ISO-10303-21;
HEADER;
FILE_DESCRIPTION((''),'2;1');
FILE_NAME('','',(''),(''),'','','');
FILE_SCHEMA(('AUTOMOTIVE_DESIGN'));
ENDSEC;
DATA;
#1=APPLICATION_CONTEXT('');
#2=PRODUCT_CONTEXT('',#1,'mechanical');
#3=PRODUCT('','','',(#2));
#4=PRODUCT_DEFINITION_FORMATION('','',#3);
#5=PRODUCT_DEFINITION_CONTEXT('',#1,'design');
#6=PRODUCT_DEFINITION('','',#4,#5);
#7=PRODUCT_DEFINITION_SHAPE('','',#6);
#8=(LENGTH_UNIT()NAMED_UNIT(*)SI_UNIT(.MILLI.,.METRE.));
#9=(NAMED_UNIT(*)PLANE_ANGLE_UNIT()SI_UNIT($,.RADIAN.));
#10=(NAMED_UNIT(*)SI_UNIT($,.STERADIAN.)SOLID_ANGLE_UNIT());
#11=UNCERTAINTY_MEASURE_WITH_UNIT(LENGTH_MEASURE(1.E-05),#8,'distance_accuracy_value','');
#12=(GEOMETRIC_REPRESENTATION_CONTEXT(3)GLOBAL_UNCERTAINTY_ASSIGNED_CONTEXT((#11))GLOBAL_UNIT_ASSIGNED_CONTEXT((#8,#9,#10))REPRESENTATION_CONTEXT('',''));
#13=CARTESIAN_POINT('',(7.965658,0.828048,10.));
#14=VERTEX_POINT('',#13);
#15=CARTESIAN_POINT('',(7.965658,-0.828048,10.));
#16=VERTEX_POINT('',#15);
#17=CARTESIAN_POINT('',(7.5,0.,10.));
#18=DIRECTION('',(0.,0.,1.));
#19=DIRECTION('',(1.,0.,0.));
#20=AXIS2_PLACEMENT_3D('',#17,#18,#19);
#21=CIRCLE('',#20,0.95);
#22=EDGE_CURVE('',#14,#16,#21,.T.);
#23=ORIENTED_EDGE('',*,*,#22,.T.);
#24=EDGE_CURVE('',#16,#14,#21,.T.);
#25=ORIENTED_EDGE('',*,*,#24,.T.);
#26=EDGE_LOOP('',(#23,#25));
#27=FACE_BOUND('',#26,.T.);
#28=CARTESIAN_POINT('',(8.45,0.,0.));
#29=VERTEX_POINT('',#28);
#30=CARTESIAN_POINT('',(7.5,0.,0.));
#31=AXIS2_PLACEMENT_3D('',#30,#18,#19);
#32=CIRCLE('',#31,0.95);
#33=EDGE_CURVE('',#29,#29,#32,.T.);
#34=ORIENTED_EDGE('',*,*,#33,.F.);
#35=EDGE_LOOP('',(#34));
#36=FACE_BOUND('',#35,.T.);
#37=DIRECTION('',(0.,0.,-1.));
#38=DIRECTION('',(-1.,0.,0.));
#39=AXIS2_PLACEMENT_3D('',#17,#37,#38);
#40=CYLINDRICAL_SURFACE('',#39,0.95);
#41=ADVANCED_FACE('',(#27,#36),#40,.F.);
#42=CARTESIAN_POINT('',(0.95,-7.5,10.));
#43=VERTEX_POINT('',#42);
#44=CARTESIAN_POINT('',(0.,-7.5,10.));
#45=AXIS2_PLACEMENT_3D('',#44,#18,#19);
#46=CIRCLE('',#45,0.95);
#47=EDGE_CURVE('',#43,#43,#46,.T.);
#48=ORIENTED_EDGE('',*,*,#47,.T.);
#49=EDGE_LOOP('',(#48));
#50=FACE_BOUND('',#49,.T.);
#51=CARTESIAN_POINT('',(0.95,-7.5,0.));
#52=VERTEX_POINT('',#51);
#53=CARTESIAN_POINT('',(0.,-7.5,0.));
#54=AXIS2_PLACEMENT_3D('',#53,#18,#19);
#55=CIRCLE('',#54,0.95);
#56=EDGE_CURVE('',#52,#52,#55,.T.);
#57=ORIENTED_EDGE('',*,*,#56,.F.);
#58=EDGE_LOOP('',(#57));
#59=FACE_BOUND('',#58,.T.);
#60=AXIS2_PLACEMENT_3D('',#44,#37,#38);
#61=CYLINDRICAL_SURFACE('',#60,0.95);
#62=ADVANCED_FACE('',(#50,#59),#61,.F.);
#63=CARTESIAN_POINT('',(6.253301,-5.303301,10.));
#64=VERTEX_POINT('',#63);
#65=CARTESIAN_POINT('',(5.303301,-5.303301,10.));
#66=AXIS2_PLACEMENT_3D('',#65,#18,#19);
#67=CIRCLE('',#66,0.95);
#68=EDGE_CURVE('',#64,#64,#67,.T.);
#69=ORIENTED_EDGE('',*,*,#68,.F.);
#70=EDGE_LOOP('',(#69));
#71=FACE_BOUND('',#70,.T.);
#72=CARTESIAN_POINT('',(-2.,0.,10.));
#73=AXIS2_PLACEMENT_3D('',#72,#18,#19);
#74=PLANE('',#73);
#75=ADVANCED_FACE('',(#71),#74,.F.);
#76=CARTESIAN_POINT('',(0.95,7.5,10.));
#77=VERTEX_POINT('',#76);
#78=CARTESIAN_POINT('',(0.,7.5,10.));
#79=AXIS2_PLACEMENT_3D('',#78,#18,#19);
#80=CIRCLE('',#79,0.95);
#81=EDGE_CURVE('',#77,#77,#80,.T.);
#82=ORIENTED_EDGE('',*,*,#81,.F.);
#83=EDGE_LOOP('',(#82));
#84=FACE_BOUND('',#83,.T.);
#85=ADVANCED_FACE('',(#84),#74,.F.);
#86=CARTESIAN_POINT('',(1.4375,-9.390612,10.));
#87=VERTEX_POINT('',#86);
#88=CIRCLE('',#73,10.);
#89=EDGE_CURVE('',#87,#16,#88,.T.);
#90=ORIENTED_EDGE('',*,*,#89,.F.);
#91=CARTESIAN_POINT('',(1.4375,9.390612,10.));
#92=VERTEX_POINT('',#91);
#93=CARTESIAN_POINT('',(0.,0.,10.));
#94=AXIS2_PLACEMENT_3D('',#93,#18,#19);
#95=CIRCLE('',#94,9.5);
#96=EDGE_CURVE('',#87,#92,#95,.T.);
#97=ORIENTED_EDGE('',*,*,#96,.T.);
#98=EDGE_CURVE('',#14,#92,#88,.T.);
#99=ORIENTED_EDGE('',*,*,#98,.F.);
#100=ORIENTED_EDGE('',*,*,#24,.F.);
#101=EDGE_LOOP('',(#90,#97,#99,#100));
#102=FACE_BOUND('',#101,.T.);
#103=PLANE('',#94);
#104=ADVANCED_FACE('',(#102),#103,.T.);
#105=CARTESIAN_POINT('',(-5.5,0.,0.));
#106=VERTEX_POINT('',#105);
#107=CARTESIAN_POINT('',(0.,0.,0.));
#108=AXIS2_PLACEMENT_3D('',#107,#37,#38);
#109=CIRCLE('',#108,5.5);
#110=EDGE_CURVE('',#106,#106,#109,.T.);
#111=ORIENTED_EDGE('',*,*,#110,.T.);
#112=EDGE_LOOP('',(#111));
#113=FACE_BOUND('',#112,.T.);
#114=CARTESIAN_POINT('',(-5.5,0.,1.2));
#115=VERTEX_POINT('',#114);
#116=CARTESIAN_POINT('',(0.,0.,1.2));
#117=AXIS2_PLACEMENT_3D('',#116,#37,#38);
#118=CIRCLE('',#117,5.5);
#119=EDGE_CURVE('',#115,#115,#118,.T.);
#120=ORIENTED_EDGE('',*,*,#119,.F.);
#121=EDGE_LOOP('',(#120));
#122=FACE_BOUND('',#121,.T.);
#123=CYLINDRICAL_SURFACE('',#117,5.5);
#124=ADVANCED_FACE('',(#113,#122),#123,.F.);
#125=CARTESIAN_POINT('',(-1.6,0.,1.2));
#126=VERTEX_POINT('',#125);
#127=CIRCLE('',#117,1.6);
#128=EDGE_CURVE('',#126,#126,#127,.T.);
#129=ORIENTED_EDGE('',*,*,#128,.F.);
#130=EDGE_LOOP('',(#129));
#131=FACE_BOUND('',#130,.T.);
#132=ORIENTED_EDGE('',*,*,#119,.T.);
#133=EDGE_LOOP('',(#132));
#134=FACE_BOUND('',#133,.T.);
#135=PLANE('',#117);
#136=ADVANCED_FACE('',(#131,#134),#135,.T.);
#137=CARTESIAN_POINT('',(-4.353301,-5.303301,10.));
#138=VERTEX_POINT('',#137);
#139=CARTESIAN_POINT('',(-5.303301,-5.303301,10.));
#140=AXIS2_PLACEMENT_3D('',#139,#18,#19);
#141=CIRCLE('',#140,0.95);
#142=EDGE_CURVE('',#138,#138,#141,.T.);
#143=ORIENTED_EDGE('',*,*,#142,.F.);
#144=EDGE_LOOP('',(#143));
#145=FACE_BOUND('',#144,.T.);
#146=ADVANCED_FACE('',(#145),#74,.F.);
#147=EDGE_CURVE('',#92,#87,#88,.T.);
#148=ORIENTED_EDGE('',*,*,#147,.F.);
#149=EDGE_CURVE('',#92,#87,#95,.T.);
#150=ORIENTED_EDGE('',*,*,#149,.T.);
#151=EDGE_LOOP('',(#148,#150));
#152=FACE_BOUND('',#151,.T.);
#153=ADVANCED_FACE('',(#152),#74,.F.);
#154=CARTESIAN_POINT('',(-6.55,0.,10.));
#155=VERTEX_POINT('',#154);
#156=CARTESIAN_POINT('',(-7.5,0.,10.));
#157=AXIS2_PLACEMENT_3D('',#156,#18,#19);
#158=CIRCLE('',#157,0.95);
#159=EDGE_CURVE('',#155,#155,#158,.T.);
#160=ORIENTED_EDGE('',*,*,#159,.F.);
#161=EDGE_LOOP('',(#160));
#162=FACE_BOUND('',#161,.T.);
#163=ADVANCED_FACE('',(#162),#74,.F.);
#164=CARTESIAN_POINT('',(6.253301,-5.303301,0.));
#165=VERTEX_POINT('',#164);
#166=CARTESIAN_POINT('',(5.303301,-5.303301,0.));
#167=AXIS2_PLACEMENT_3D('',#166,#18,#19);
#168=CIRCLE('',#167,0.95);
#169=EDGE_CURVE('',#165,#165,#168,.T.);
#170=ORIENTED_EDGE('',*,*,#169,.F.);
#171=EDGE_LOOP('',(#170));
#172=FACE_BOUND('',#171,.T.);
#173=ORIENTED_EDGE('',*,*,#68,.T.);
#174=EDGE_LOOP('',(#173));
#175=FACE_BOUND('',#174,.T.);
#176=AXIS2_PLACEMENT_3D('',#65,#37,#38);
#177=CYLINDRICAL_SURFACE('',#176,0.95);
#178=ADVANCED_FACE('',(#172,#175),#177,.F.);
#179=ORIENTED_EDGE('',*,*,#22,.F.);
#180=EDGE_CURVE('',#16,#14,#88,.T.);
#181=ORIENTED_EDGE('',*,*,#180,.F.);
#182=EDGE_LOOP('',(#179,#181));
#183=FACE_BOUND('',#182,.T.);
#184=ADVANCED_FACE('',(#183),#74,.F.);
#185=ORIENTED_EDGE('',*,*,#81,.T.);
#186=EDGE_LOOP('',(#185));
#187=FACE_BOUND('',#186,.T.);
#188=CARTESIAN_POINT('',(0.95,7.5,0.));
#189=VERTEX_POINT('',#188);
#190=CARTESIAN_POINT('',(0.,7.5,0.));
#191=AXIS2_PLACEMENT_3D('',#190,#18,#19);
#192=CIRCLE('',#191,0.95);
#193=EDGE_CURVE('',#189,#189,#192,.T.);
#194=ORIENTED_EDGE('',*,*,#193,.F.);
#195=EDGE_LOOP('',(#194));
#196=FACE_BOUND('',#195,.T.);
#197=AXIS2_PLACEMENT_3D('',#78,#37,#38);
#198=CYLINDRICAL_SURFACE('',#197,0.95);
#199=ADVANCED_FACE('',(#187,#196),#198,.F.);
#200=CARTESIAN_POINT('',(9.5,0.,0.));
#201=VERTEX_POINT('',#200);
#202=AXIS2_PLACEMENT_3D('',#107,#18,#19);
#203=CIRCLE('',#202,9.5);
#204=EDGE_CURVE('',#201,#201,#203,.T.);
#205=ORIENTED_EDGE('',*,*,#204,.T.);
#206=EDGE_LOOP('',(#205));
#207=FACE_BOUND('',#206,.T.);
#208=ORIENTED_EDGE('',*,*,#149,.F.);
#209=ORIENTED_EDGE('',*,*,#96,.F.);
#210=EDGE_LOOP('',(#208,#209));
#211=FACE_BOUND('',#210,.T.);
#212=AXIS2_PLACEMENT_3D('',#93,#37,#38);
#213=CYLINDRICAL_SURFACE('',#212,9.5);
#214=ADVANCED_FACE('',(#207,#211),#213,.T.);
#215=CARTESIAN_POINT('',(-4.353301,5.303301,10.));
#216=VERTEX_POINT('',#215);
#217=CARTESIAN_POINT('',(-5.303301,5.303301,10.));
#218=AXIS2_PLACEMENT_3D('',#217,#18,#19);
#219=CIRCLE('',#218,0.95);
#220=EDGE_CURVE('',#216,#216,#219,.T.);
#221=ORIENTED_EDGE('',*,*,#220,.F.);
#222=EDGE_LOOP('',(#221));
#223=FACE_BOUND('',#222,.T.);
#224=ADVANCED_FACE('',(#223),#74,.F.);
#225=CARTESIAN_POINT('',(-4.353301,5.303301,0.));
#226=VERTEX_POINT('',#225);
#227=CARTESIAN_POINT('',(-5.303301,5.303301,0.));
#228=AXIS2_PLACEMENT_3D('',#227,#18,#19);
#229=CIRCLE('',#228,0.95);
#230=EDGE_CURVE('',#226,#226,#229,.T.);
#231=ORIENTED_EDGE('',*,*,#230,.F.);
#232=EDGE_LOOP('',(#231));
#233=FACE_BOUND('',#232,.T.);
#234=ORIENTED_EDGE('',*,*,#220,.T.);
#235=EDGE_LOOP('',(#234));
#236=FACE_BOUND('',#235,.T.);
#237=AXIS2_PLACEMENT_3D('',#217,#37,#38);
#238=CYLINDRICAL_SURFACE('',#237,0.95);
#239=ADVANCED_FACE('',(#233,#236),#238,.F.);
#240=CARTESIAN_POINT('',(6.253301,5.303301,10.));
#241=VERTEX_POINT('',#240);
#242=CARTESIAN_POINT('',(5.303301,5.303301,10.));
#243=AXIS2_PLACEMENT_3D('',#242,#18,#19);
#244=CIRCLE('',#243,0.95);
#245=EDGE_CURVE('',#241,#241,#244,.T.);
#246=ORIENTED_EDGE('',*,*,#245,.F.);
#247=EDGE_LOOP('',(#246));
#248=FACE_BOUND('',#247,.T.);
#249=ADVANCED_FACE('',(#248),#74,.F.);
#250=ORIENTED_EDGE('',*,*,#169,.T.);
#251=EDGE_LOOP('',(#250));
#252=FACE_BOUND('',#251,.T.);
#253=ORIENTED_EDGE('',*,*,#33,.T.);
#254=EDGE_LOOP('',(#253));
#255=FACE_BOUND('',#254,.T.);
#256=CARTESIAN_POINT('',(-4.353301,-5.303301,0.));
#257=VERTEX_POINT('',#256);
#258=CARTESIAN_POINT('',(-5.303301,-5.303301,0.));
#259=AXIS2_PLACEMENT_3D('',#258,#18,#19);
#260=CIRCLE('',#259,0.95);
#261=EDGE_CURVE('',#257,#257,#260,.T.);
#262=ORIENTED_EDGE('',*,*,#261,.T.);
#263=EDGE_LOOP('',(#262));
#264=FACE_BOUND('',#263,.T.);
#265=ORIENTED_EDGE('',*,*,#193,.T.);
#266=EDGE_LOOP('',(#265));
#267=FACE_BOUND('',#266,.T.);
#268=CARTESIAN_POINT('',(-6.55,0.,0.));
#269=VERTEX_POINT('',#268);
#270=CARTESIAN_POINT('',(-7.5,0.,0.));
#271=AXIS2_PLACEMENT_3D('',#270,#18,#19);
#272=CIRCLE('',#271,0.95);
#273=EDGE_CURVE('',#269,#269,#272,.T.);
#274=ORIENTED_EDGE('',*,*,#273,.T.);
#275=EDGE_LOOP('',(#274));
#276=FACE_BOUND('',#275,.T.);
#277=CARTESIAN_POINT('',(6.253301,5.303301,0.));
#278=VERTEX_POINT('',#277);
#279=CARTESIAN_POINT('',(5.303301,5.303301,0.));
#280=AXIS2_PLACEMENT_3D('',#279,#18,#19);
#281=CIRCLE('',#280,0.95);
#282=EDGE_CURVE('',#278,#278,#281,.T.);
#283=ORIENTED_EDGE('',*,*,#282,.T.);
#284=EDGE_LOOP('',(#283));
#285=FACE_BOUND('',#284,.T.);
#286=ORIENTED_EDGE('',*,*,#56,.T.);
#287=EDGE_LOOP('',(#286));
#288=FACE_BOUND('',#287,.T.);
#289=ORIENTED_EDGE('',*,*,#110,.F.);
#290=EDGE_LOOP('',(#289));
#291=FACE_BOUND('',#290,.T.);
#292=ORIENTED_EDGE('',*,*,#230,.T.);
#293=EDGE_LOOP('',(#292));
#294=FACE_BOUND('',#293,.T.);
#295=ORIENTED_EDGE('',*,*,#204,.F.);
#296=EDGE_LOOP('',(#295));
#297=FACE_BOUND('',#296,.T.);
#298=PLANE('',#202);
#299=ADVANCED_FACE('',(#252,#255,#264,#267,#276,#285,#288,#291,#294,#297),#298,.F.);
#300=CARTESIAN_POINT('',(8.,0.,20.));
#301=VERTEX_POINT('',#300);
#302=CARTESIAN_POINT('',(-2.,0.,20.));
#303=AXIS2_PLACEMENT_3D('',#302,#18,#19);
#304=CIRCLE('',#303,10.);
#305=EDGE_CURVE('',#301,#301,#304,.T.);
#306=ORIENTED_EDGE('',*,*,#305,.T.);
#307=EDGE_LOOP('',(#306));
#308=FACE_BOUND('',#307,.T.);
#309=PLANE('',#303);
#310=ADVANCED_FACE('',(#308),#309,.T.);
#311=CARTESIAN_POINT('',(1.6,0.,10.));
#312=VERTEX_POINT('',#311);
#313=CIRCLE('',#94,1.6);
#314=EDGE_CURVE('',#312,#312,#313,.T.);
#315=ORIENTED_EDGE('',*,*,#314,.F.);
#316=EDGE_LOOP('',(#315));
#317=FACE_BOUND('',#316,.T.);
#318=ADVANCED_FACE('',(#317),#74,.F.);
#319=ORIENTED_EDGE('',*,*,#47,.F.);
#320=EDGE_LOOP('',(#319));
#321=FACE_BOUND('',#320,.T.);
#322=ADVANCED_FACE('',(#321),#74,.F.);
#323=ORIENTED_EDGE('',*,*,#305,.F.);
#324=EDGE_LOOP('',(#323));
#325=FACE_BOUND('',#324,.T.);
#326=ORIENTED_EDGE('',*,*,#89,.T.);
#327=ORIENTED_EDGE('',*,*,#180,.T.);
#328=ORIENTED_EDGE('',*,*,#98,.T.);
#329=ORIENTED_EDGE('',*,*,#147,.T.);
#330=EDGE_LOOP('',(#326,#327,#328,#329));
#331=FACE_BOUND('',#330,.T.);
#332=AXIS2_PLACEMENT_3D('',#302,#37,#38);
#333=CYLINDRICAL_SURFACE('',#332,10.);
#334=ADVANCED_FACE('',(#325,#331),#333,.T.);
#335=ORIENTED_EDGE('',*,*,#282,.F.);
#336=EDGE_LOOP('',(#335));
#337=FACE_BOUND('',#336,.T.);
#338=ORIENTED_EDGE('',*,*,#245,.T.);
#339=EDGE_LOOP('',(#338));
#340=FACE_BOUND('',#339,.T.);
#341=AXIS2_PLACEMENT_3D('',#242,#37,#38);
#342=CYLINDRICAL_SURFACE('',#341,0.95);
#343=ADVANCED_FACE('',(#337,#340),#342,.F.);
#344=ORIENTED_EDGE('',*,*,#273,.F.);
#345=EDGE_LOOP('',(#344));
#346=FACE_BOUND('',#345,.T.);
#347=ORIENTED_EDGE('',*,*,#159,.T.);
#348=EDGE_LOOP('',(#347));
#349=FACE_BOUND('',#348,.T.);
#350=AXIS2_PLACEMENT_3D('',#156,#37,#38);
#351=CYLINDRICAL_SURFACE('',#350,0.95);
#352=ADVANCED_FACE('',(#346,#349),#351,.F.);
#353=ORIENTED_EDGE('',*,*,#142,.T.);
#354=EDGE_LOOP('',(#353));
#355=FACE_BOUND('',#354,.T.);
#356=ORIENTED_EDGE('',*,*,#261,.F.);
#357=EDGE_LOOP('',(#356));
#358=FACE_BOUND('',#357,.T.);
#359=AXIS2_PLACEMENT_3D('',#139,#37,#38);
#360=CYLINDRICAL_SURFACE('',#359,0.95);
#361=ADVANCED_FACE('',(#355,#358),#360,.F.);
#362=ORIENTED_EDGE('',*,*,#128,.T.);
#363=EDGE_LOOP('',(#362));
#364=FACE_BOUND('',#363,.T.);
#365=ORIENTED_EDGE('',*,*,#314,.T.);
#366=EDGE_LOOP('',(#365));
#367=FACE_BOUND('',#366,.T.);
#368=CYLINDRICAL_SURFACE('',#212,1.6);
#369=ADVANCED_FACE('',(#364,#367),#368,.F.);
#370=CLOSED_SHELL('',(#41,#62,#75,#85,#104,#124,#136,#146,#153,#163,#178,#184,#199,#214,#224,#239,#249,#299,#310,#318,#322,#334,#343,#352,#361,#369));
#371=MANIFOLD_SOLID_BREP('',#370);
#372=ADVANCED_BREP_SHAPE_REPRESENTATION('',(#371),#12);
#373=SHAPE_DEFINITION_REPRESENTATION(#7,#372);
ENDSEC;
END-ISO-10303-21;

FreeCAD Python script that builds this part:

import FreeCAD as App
import Part
import Sketcher
from FreeCAD import Vector

doc = App.newDocument("Part")
body = doc.addObject("PartDesign::Body", "Body")

# Sketch on XY plane
sketch1 = doc.addObject("Sketcher::SketchObject", "Sketch")
body.addObject(sketch1)
sketch1.AttachmentSupport = (doc.XY_Plane, [""])
sketch1.MapMode = "FlatFace"
sketch1.addGeometry([
    Part.Circle(Vector(0, 0, 0), Vector(0, 0, 1), 9.5),  # 0
    Part.Circle(Vector(-5.3, -5.3, 0), Vector(0, 0, 1), 0.9),  # 1
    Part.Circle(Vector(0, -7.5, 0), Vector(0, 0, 1), 0.9),  # 2
    Part.Circle(Vector(5.3, -5.3, 0), Vector(0, 0, 1), 0.9),  # 3
    Part.Circle(Vector(-7.5, 0, 0), Vector(0, 0, 1), 0.9),  # 4
    Part.Circle(Vector(-5.3, 5.3, 0), Vector(0, 0, 1), 0.9),  # 5
    Part.Circle(Vector(0, 0, 0), Vector(0, 0, 1), 1.6),  # 6
    Part.Circle(Vector(7.5, 0, 0), Vector(0, 0, 1), 0.9),  # 7
    Part.Circle(Vector(0, 7.5, 0), Vector(0, 0, 1), 0.9),  # 8
    Part.Circle(Vector(5.3, 5.3, 0), Vector(0, 0, 1), 0.9),  # 9
], False)
sketch1.addConstraint([
    Sketcher.Constraint("Coincident", 0, 3, -1, 1),
    Sketcher.Constraint("Coincident", 6, 3, -1, 1),
    Sketcher.Constraint("Equal", 1, 2),
    Sketcher.Constraint("Equal", 2, 3),
    Sketcher.Constraint("Equal", 3, 4),
    Sketcher.Constraint("Equal", 4, 5),
    Sketcher.Constraint("Equal", 5, 7),
    Sketcher.Constraint("Equal", 7, 8),
    Sketcher.Constraint("Equal", 8, 9),
    Sketcher.Constraint("Symmetric", 3, 3, 5, 3, -1, 1),
    Sketcher.Constraint("Symmetric", 4, 3, 7, 3, -1, 1),
    Sketcher.Constraint("Symmetric", 2, 3, 8, 3, -1, 1),
    Sketcher.Constraint("Symmetric", 1, 3, 9, 3, -1, 1),
    Sketcher.Constraint("Symmetric", 1, 3, 3, 3, -2),
    Sketcher.Constraint("PointOnObject", 2, 3, -2),
    Sketcher.Constraint("PointOnObject", 4, 3, -1),
    Sketcher.Constraint("Diameter", 0, 19.0),
    Sketcher.Constraint("Diameter", 1, 1.9),
    Sketcher.Constraint("Diameter", 6, 3.2),
    Sketcher.Constraint("DistanceY", 2, 3, -1, 1, 7.5),
    Sketcher.Constraint("DistanceX", 4, 3, -1, 1, 7.5),
    Sketcher.Constraint("DistanceX", 1, 3, -1, 1, 5.303301),
    Sketcher.Constraint("DistanceY", 1, 3, -1, 1, 5.303301),
])
pad1 = doc.addObject("PartDesign::Pad", "Pad")
body.addObject(pad1)
pad1.Profile = sketch1
pad1.Length = 10

# Sketch on XY plane
sketch2 = doc.addObject("Sketcher::SketchObject", "Sketch001")
body.addObject(sketch2)
sketch2.AttachmentSupport = (doc.XY_Plane, [""])
sketch2.MapMode = "FlatFace"
sketch2.AttachmentOffset = App.Placement(Vector(0, 0, 10), App.Rotation())
sketch2.addGeometry(Part.Circle(Vector(-2, 0, 0), Vector(0, 0, 1), 10), False)
sketch2.addConstraint([
    Sketcher.Constraint("PointOnObject", 0, 3, -1),
    Sketcher.Constraint("Diameter", 0, 20.0),
    Sketcher.Constraint("DistanceX", 0, 3, -1, 1, 2.0),
])
pad2 = doc.addObject("PartDesign::Pad", "Pad001")
body.addObject(pad2)
pad2.Profile = sketch2
pad2.Length = 10

# Sketch on XY plane
sketch3 = doc.addObject("Sketcher::SketchObject", "Sketch002")
body.addObject(sketch3)
sketch3.AttachmentSupport = (doc.XY_Plane, [""])
sketch3.MapMode = "FlatFace"
sketch3.addGeometry(Part.Circle(Vector(0, 0, 0), Vector(0, 0, 1), 6), False)
sketch3.addConstraint([
    Sketcher.Constraint("Coincident", 0, 3, -1, 1),
    Sketcher.Constraint("Diameter", 0, 11.0),
])
pocket1 = doc.addObject("PartDesign::Pocket", "Pocket")
body.addObject(pocket1)
pocket1.Profile = sketch3
pocket1.Length = 1.2
pocket1.Reversed = True

doc.recompute()
